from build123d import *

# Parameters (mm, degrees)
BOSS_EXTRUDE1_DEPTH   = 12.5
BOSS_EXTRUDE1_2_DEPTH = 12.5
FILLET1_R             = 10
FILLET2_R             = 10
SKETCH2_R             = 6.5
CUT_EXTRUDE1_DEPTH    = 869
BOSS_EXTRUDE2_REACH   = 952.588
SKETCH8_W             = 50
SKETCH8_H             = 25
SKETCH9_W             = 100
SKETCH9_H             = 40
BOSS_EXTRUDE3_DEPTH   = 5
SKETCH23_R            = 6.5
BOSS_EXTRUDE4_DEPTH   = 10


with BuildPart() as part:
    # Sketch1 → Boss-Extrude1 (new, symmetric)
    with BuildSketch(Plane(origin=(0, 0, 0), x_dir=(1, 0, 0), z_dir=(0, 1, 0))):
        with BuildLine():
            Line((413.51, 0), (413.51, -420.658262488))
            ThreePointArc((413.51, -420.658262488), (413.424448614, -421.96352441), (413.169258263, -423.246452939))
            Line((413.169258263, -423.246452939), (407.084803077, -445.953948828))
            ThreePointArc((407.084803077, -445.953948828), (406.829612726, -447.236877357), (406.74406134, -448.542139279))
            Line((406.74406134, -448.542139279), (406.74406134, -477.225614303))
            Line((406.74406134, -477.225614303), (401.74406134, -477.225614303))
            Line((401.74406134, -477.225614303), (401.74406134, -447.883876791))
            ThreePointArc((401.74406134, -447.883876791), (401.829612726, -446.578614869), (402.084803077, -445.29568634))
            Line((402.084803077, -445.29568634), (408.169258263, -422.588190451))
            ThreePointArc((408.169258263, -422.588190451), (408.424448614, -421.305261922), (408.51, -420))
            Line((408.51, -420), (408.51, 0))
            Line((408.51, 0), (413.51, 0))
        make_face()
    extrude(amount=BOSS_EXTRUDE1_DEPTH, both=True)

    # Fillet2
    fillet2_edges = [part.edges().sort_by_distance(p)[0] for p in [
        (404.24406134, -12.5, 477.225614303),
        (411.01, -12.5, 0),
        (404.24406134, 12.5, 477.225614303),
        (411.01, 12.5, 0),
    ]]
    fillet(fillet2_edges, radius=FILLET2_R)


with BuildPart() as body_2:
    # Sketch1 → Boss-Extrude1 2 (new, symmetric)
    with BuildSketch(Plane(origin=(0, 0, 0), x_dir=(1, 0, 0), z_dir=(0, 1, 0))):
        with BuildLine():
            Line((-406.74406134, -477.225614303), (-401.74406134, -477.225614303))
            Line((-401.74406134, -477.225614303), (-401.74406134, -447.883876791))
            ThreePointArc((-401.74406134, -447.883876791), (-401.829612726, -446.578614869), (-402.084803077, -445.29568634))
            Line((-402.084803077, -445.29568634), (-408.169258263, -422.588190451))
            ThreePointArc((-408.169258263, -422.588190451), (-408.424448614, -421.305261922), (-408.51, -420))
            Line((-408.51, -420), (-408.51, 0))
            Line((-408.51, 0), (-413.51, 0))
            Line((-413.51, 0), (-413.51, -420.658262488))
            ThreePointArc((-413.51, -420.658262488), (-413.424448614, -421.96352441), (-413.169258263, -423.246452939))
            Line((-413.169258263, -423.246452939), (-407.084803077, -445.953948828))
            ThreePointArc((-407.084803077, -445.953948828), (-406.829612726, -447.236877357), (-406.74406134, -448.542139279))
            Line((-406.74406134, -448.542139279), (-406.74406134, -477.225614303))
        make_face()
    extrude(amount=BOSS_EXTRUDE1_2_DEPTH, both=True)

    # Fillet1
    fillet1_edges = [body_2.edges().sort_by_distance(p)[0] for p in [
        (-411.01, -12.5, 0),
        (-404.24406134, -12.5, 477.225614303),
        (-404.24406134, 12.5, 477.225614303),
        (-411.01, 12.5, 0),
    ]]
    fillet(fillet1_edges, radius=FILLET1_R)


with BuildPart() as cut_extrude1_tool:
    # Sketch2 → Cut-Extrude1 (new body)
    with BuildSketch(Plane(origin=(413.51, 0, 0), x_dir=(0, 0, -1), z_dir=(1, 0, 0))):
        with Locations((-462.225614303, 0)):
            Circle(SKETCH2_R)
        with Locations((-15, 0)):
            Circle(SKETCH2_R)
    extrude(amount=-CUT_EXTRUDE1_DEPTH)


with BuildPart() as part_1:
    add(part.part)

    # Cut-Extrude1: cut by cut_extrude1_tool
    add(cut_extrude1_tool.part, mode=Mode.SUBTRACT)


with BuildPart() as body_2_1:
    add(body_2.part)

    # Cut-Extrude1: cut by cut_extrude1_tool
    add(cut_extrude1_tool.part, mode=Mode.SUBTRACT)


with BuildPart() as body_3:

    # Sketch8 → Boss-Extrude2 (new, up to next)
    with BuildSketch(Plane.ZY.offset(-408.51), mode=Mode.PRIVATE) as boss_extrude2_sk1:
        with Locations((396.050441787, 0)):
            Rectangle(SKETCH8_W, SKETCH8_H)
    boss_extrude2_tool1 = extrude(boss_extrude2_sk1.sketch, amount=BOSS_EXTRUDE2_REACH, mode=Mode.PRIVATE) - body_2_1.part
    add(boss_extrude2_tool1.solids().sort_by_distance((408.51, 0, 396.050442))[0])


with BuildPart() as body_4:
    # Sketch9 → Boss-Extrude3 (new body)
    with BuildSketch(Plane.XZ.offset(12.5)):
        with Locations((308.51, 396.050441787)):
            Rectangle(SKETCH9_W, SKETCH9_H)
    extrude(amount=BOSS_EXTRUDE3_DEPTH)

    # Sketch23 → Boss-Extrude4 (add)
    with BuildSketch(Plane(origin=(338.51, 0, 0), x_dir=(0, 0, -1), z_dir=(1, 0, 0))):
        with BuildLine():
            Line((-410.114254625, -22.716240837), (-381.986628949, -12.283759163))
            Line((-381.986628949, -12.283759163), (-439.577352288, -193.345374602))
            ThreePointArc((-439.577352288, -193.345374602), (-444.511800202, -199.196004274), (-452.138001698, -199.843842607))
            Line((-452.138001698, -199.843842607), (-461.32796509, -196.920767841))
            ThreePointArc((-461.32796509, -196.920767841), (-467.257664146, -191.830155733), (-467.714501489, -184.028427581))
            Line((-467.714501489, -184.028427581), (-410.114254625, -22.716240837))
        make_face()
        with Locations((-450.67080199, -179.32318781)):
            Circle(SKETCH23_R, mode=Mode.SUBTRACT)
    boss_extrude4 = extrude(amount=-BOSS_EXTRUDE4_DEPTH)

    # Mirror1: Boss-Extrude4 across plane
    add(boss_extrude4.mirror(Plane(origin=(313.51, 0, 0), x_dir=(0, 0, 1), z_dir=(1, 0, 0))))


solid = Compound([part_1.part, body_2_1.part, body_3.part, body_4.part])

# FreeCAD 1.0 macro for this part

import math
import FreeCAD as App
import Part
import Sketcher
from FreeCAD import Vector
Q = App.Units.Quantity


def edges_at(feature, points):
    """Names of the edges that pass closest to the given points."""
    edges = feature.Shape.Edges
    near = lambda p: min(range(len(edges)), key=lambda i: edges[i].distToShape(Part.Vertex(*p))[0])
    return sorted({f"Edge{near(p) + 1}" for p in points})


def add_polygon(sketch, points):
    """Adds a closed chain of lines whose ends are joined by coincident constraints."""
    first, n = sketch.GeometryCount, len(points)
    for a, b in zip(points, points[1:] + points[:1]):
        sketch.addGeometry(Part.LineSegment(App.Vector(*a, 0), App.Vector(*b, 0)), False)
    for i in range(n):
        sketch.addConstraint(Sketcher.Constraint("Coincident", first + i, 2, first + (i + 1) % n, 1))

doc = App.newDocument("Part")
body = doc.addObject("PartDesign::Body", "Body")

# Sketch on XZ plane
sketch1 = doc.addObject("Sketcher::SketchObject", "Sketch")
body.addObject(sketch1)
sketch1.AttachmentSupport = (doc.XZ_Plane, [""])
sketch1.MapMode = "FlatFace"
sketch1.addGeometry([
    Part.LineSegment(Vector(413.5, 420.7, 0), Vector(413.5, 0, 0)),  # 0
    Part.LineSegment(Vector(413.5, 0, 0), Vector(408.5, 0, 0)),  # 1
    Part.LineSegment(Vector(408.5, 0, 0), Vector(408.5, 420, 0)),  # 2
    Part.ArcOfCircle(Part.Circle(Vector(398.5, 420, 0), Vector(0, 0, 1), 10), math.radians(0), math.radians(15)),  # 3
    Part.LineSegment(Vector(408.2, 422.6, 0), Vector(402.1, 445.3, 0)),  # 4
    Part.ArcOfCircle(Part.Circle(Vector(411.7, 447.9, 0), Vector(0, 0, 1), 10), math.radians(180), math.radians(195)),  # 5
    Part.LineSegment(Vector(401.7, 447.9, 0), Vector(401.7, 477.2, 0)),  # 6
    Part.LineSegment(Vector(401.7, 477.2, 0), Vector(406.7, 477.2, 0)),  # 7
    Part.LineSegment(Vector(406.7, 477.2, 0), Vector(406.7, 448.5, 0)),  # 8
    Part.ArcOfCircle(Part.Circle(Vector(416.7, 448.5, 0), Vector(0, 0, 1), 10), math.radians(180), math.radians(195)),  # 9
    Part.LineSegment(Vector(407.1, 446, 0), Vector(413.2, 423.2, 0)),  # 10
    Part.ArcOfCircle(Part.Circle(Vector(403.5, 420.7, 0), Vector(0, 0, 1), 10), math.radians(0), math.radians(15)),  # 11
], False)
sketch1.addConstraint([
    Sketcher.Constraint("Coincident", 0, 2, 1, 1),
    Sketcher.Constraint("Coincident", 1, 2, 2, 1),
    Sketcher.Constraint("Tangent", 2, 2, 3, 1),
    Sketcher.Constraint("Tangent", 3, 2, 4, 1),
    Sketcher.Constraint("Tangent", 4, 2, 5, 2),
    Sketcher.Constraint("Tangent", 5, 1, 6, 1),
    Sketcher.Constraint("Coincident", 6, 2, 7, 1),
    Sketcher.Constraint("Coincident", 7, 2, 8, 1),
    Sketcher.Constraint("Tangent", 8, 2, 9, 1),
    Sketcher.Constraint("Tangent", 9, 2, 10, 1),
    Sketcher.Constraint("Tangent", 10, 2, 11, 2),
    Sketcher.Constraint("Tangent", 11, 1, 0, 1),
    Sketcher.Constraint("Vertical", 0),
    Sketcher.Constraint("Horizontal", 1),
    Sketcher.Constraint("Vertical", 2),
    Sketcher.Constraint("Vertical", 6),
    Sketcher.Constraint("Horizontal", 7),
    Sketcher.Constraint("Vertical", 8),
    Sketcher.Constraint("Equal", 3, 5),
    Sketcher.Constraint("Equal", 5, 9),
    Sketcher.Constraint("Equal", 9, 11),
    Sketcher.Constraint("PointOnObject", 0, 2, -1),
    Sketcher.Constraint("Parallel", 4, 10),
    Sketcher.Constraint("Equal", 1, 7),
    Sketcher.Constraint("Radius", 3, Q("10 mm")),
    Sketcher.Constraint("DistanceX", 1, 2, 1, 1, Q("5 mm")),
    Sketcher.Constraint("DistanceY", 2, 1, 2, 2, Q("420 mm")),
    Sketcher.Constraint("Angle", 4, Q("105 deg")),
    Sketcher.Constraint("DistanceX", -1, 1, 3, 3, Q("398.51 mm")),
    Sketcher.Constraint("Distance", 4, Q("23.50853 mm")),
    Sketcher.Constraint("DistanceY", 0, 2, 0, 1, Q("420.658262 mm")),
    Sketcher.Constraint("DistanceY", 6, 1, 6, 2, Q("29.341738 mm")),
])
pad1 = doc.addObject("PartDesign::Pad", "Pad")
body.addObject(pad1)
pad1.Profile = sketch1
pad1.Length = 25
pad1.Midplane = True
doc.recompute()

fillet = doc.addObject("PartDesign::Fillet", "Fillet")
body.addObject(fillet)
fillet.Base = (pad1, edges_at(pad1, [
    (404.244, -12.5, 477.226),
    (411.01, -12.5, 0),
    (404.244, 12.5, 477.226),
    (411.01, 12.5, 0),
]))
fillet.Radius = 10
body2 = doc.addObject("PartDesign::Body", "Body001")

# Sketch on XZ plane
sketch2 = doc.addObject("Sketcher::SketchObject", "Sketch001")
body2.addObject(sketch2)
sketch2.AttachmentSupport = (doc.getObject("XZ_Plane001"), [""])
sketch2.MapMode = "FlatFace"
sketch2.addGeometry([
    Part.LineSegment(Vector(-406.7, 477.2, 0), Vector(-401.7, 477.2, 0)),  # 0
    Part.LineSegment(Vector(-401.7, 477.2, 0), Vector(-401.7, 447.9, 0)),  # 1
    Part.ArcOfCircle(Part.Circle(Vector(-411.7, 447.9, 0), Vector(0, 0, 1), 10), math.radians(-15), math.radians(0)),  # 2
    Part.LineSegment(Vector(-402.1, 445.3, 0), Vector(-408.2, 422.6, 0)),  # 3
    Part.ArcOfCircle(Part.Circle(Vector(-398.5, 420, 0), Vector(0, 0, 1), 10), math.radians(165), math.radians(180)),  # 4
    Part.LineSegment(Vector(-408.5, 420, 0), Vector(-408.5, 0, 0)),  # 5
    Part.LineSegment(Vector(-408.5, 0, 0), Vector(-413.5, 0, 0)),  # 6
    Part.LineSegment(Vector(-413.5, 0, 0), Vector(-413.5, 420.7, 0)),  # 7
    Part.ArcOfCircle(Part.Circle(Vector(-403.5, 420.7, 0), Vector(0, 0, 1), 10), math.radians(165), math.radians(180)),  # 8
    Part.LineSegment(Vector(-413.2, 423.2, 0), Vector(-407.1, 446, 0)),  # 9
    Part.ArcOfCircle(Part.Circle(Vector(-416.7, 448.5, 0), Vector(0, 0, 1), 10), math.radians(-15), math.radians(0)),  # 10
    Part.LineSegment(Vector(-406.7, 448.5, 0), Vector(-406.7, 477.2, 0)),  # 11
], False)
sketch2.addConstraint([
    Sketcher.Constraint("Coincident", 0, 2, 1, 1),
    Sketcher.Constraint("Tangent", 1, 2, 2, 2),
    Sketcher.Constraint("Tangent", 2, 1, 3, 1),
    Sketcher.Constraint("Tangent", 3, 2, 4, 1),
    Sketcher.Constraint("Tangent", 4, 2, 5, 1),
    Sketcher.Constraint("Coincident", 5, 2, 6, 1),
    Sketcher.Constraint("Coincident", 6, 2, 7, 1),
    Sketcher.Constraint("Tangent", 7, 2, 8, 2),
    Sketcher.Constraint("Tangent", 8, 1, 9, 1),
    Sketcher.Constraint("Tangent", 9, 2, 10, 1),
    Sketcher.Constraint("Tangent", 10, 2, 11, 1),
    Sketcher.Constraint("Coincident", 11, 2, 0, 1),
    Sketcher.Constraint("Horizontal", 0),
    Sketcher.Constraint("Vertical", 1),
    Sketcher.Constraint("Vertical", 5),
    Sketcher.Constraint("Horizontal", 6),
    Sketcher.Constraint("Vertical", 7),
    Sketcher.Constraint("Vertical", 11),
    Sketcher.Constraint("Equal", 2, 4),
    Sketcher.Constraint("Equal", 4, 8),
    Sketcher.Constraint("Equal", 8, 10),
    Sketcher.Constraint("PointOnObject", 5, 2, -1),
    Sketcher.Constraint("Parallel", 3, 9),
    Sketcher.Constraint("Equal", 0, 6),
    Sketcher.Constraint("Radius", 2, Q("10 mm")),
    Sketcher.Constraint("DistanceX", 0, 1, 0, 2, Q("5 mm")),
    Sketcher.Constraint("DistanceY", 5, 2, 5, 1, Q("420 mm")),
    Sketcher.Constraint("Angle", 3, Q("-105 deg")),
    Sketcher.Constraint("DistanceX", 4, 3, -1, 1, Q("398.51 mm")),
    Sketcher.Constraint("Distance", 3, Q("23.50853 mm")),
    Sketcher.Constraint("DistanceY", 1, 2, 1, 1, Q("29.341738 mm")),
    Sketcher.Constraint("DistanceY", 7, 1, 7, 2, Q("420.658262 mm")),
])
pad2 = doc.addObject("PartDesign::Pad", "Pad001")
body2.addObject(pad2)
pad2.Profile = sketch2
pad2.Length = 25
pad2.Midplane = True
doc.recompute()

fillet2 = doc.addObject("PartDesign::Fillet", "Fillet001")
body2.addObject(fillet2)
fillet2.Base = (pad2, edges_at(pad2, [
    (-411.01, -12.5, 0),
    (-404.244, -12.5, 477.226),
    (-404.244, 12.5, 477.226),
    (-411.01, 12.5, 0),
]))
fillet2.Radius = 10
body3 = doc.addObject("PartDesign::Body", "Body002")
body3.AllowCompound = True

# Sketch on YZ plane
sketch3 = doc.addObject("Sketcher::SketchObject", "Sketch002")
body3.addObject(sketch3)
sketch3.AttachmentSupport = (doc.getObject("YZ_Plane002"), [""])
sketch3.MapMode = "FlatFace"
sketch3.AttachmentOffset = App.Placement(Vector(0, 0, 413.51), App.Rotation())
sketch3.addGeometry([
    Part.Circle(Vector(0, 462, 0), Vector(0, 0, 1), 6),
    Part.Circle(Vector(0, 15, 0), Vector(0, 0, 1), 6),
], False)
sketch3.addConstraint([
    Sketcher.Constraint("Equal", 0, 1),
    Sketcher.Constraint("PointOnObject", 0, 3, -2),
    Sketcher.Constraint("PointOnObject", 1, 3, -2),
    Sketcher.Constraint("Diameter", 0, Q("13 mm")),
    Sketcher.Constraint("DistanceY", -1, 1, 1, 3, Q("15 mm")),
    Sketcher.Constraint("DistanceY", -1, 1, 0, 3, Q("462.225614 mm")),
])
pad3 = doc.addObject("PartDesign::Pad", "Pad002")
body3.addObject(pad3)
pad3.Profile = sketch3
pad3.Length = 869
pad3.Reversed = True
doc.recompute()

body4 = doc.addObject("PartDesign::Body", "Body003")
body4.BaseFeature = body3
boolean = doc.addObject("PartDesign::Boolean", "Boolean")
body.addObject(boolean)
boolean.Type = "Cut"
boolean.addObjects([body4])
doc.recompute()

boolean2 = doc.addObject("PartDesign::Boolean", "Boolean001")
body2.addObject(boolean2)
boolean2.Type = "Cut"
boolean2.addObjects([body3])
body5 = doc.addObject("PartDesign::Body", "Body004")

# Sketch on YZ plane
sketch4 = doc.addObject("Sketcher::SketchObject", "Sketch003")
body5.addObject(sketch4)
sketch4.AttachmentSupport = (doc.getObject("YZ_Plane004"), [""])
sketch4.MapMode = "FlatFace"
sketch4.AttachmentOffset = App.Placement(Vector(0, 0, 408.51), App.Rotation())
add_polygon(sketch4, [(12, 371), (-12, 371), (-12, 421), (12, 421)])  # lines 0-3
sketch4.addConstraint([
    Sketcher.Constraint("Horizontal", 0),
    Sketcher.Constraint("Vertical", 1),
    Sketcher.Constraint("Horizontal", 2),
    Sketcher.Constraint("Vertical", 3),
    Sketcher.Constraint("DistanceX", 0, 2, 0, 1, Q("25 mm")),
    Sketcher.Constraint("DistanceY", 1, 1, 1, 2, Q("50 mm")),
    Sketcher.Constraint("DistanceX", 0, 2, -1, 1, Q("12.5 mm")),
    Sketcher.Constraint("DistanceY", -1, 1, 0, 2, Q("371.050442 mm")),
])
pad4 = doc.addObject("PartDesign::Pad", "Pad003")
body5.addObject(pad4)
pad4.Profile = sketch4
pad4.Length = 817.02
pad4.Reversed = True
body6 = doc.addObject("PartDesign::Body", "Body005")

# Sketch on XZ plane
sketch5 = doc.addObject("Sketcher::SketchObject", "Sketch004")
body6.addObject(sketch5)
sketch5.AttachmentSupport = (doc.getObject("XZ_Plane005"), [""])
sketch5.MapMode = "FlatFace"
sketch5.AttachmentOffset = App.Placement(Vector(0, 0, 12.5), App.Rotation())
add_polygon(sketch5, [(259, 416), (259, 376), (359, 376), (359, 416)])  # lines 0-3
sketch5.addConstraint([
    Sketcher.Constraint("Vertical", 0),
    Sketcher.Constraint("Horizontal", 1),
    Sketcher.Constraint("Vertical", 2),
    Sketcher.Constraint("Horizontal", 3),
    Sketcher.Constraint("DistanceX", 1, 1, 1, 2, Q("100 mm")),
    Sketcher.Constraint("DistanceY", 0, 2, 0, 1, Q("40 mm")),
    Sketcher.Constraint("DistanceX", -1, 1, 0, 2, Q("258.51 mm")),
    Sketcher.Constraint("DistanceY", -1, 1, 0, 2, Q("376.050442 mm")),
])
pad5 = doc.addObject("PartDesign::Pad", "Pad004")
body6.addObject(pad5)
pad5.Profile = sketch5
pad5.Length = 5

# Sketch on YZ plane
sketch6 = doc.addObject("Sketcher::SketchObject", "Sketch005")
body6.addObject(sketch6)
sketch6.AttachmentSupport = (doc.getObject("YZ_Plane005"), [""])
sketch6.MapMode = "FlatFace"
sketch6.AttachmentOffset = App.Placement(Vector(0, 0, 338.51), App.Rotation())
sketch6.addGeometry([
    Part.LineSegment(Vector(-12.283759, 381.986629, 0), Vector(-22.716241, 410.114255, 0)),  # 0
    Part.LineSegment(Vector(-22.716241, 410.114255, 0), Vector(-184.028428, 467.714501, 0)),  # 1
    Part.ArcOfCircle(Part.Circle(Vector(-187.391209, 458.296874, 0), Vector(0, 0, 1), 10), math.radians(70.349719), math.radians(162.355563)),  # 2
    Part.LineSegment(Vector(-196.920768, 461.327965, 0), Vector(-199.843843, 452.138002, 0)),  # 3
    Part.ArcOfCircle(Part.Circle(Vector(-190.314284, 449.106911, 0), Vector(0, 0, 1), 10), math.radians(162.355563), math.radians(252.355563)),  # 4
    Part.LineSegment(Vector(-193.345375, 439.577352, 0), Vector(-12.283759, 381.986629, 0)),  # 5
    Part.Circle(Vector(-179.323188, 450.670802, 0), Vector(0, 0, 1), 6.5),  # 6
], False)
sketch6.addConstraint([
    Sketcher.Constraint("Coincident", 0, 2, 1, 1),
    Sketcher.Constraint("Coincident", 1, 2, 2, 1),
    Sketcher.Constraint("Coincident", 2, 2, 3, 1),
    Sketcher.Constraint("Coincident", 3, 2, 4, 1),
    Sketcher.Constraint("Coincident", 4, 2, 5, 1),
    Sketcher.Constraint("Coincident", 5, 2, 0, 1),
    Sketcher.Constraint("Diameter", 6, Q("13 mm")),
    Sketcher.Constraint("Radius", 2, Q("10 mm")),
    Sketcher.Constraint("Radius", 4, Q("10 mm")),
    Sketcher.Constraint("Distance", 0, Q("30 mm")),
    Sketcher.Constraint("Distance", 5, Q("190 mm")),
    Sketcher.Constraint("DistanceY", -1, 1, 3, 2, Q("452.138002 mm")),
    Sketcher.Constraint("DistanceY", -1, 1, 6, 3, Q("450.670802 mm")),
    Sketcher.Constraint("DistanceY", -1, 1, 1, 2, Q("467.714501 mm")),
    Sketcher.Constraint("Distance", 3, Q("9.64364 mm")),
    Sketcher.Constraint("DistanceX", 2, 3, -1, 1, Q("187.391209 mm")),
    Sketcher.Constraint("DistanceY", -1, 1, 4, 3, Q("449.106911 mm")),
    Sketcher.Constraint("DistanceX", 0, 2, -1, 1, Q("22.716241 mm")),
    Sketcher.Constraint("DistanceX", 5, 2, -1, 1, Q("12.283759 mm")),
    Sketcher.Constraint("DistanceY", -1, 1, 5, 2, Q("381.986629 mm")),
    Sketcher.Constraint("DistanceX", 2, 3, 6, 3, Q("8.068021 mm")),
    Sketcher.Constraint("DistanceY", 0, 2, 2, 3, Q("48.18262 mm")),
    Sketcher.Constraint("DistanceX", 2, 2, 2, 3, Q("9.529559 mm")),
])
pad6 = doc.addObject("PartDesign::Pad", "Pad005")
body6.addObject(pad6)
pad6.Profile = sketch6
pad6.Length = 10
pad6.Reversed = True
doc.recompute()

datumplane = doc.addObject("PartDesign::Plane", "DatumPlane")
body6.addObject(datumplane)
datumplane.AttachmentSupport = (doc.getObject("YZ_Plane005"), [""])
datumplane.MapMode = "FlatFace"
datumplane.AttachmentOffset = App.Placement(Vector(0, 0, 313.51), App.Rotation())
mirrored = doc.addObject("PartDesign::Mirrored", "Mirrored")
body6.addObject(mirrored)
mirrored.Originals = [pad6]
mirrored.MirrorPlane = (datumplane, [""])
body6.Tip = mirrored

doc.recompute()
